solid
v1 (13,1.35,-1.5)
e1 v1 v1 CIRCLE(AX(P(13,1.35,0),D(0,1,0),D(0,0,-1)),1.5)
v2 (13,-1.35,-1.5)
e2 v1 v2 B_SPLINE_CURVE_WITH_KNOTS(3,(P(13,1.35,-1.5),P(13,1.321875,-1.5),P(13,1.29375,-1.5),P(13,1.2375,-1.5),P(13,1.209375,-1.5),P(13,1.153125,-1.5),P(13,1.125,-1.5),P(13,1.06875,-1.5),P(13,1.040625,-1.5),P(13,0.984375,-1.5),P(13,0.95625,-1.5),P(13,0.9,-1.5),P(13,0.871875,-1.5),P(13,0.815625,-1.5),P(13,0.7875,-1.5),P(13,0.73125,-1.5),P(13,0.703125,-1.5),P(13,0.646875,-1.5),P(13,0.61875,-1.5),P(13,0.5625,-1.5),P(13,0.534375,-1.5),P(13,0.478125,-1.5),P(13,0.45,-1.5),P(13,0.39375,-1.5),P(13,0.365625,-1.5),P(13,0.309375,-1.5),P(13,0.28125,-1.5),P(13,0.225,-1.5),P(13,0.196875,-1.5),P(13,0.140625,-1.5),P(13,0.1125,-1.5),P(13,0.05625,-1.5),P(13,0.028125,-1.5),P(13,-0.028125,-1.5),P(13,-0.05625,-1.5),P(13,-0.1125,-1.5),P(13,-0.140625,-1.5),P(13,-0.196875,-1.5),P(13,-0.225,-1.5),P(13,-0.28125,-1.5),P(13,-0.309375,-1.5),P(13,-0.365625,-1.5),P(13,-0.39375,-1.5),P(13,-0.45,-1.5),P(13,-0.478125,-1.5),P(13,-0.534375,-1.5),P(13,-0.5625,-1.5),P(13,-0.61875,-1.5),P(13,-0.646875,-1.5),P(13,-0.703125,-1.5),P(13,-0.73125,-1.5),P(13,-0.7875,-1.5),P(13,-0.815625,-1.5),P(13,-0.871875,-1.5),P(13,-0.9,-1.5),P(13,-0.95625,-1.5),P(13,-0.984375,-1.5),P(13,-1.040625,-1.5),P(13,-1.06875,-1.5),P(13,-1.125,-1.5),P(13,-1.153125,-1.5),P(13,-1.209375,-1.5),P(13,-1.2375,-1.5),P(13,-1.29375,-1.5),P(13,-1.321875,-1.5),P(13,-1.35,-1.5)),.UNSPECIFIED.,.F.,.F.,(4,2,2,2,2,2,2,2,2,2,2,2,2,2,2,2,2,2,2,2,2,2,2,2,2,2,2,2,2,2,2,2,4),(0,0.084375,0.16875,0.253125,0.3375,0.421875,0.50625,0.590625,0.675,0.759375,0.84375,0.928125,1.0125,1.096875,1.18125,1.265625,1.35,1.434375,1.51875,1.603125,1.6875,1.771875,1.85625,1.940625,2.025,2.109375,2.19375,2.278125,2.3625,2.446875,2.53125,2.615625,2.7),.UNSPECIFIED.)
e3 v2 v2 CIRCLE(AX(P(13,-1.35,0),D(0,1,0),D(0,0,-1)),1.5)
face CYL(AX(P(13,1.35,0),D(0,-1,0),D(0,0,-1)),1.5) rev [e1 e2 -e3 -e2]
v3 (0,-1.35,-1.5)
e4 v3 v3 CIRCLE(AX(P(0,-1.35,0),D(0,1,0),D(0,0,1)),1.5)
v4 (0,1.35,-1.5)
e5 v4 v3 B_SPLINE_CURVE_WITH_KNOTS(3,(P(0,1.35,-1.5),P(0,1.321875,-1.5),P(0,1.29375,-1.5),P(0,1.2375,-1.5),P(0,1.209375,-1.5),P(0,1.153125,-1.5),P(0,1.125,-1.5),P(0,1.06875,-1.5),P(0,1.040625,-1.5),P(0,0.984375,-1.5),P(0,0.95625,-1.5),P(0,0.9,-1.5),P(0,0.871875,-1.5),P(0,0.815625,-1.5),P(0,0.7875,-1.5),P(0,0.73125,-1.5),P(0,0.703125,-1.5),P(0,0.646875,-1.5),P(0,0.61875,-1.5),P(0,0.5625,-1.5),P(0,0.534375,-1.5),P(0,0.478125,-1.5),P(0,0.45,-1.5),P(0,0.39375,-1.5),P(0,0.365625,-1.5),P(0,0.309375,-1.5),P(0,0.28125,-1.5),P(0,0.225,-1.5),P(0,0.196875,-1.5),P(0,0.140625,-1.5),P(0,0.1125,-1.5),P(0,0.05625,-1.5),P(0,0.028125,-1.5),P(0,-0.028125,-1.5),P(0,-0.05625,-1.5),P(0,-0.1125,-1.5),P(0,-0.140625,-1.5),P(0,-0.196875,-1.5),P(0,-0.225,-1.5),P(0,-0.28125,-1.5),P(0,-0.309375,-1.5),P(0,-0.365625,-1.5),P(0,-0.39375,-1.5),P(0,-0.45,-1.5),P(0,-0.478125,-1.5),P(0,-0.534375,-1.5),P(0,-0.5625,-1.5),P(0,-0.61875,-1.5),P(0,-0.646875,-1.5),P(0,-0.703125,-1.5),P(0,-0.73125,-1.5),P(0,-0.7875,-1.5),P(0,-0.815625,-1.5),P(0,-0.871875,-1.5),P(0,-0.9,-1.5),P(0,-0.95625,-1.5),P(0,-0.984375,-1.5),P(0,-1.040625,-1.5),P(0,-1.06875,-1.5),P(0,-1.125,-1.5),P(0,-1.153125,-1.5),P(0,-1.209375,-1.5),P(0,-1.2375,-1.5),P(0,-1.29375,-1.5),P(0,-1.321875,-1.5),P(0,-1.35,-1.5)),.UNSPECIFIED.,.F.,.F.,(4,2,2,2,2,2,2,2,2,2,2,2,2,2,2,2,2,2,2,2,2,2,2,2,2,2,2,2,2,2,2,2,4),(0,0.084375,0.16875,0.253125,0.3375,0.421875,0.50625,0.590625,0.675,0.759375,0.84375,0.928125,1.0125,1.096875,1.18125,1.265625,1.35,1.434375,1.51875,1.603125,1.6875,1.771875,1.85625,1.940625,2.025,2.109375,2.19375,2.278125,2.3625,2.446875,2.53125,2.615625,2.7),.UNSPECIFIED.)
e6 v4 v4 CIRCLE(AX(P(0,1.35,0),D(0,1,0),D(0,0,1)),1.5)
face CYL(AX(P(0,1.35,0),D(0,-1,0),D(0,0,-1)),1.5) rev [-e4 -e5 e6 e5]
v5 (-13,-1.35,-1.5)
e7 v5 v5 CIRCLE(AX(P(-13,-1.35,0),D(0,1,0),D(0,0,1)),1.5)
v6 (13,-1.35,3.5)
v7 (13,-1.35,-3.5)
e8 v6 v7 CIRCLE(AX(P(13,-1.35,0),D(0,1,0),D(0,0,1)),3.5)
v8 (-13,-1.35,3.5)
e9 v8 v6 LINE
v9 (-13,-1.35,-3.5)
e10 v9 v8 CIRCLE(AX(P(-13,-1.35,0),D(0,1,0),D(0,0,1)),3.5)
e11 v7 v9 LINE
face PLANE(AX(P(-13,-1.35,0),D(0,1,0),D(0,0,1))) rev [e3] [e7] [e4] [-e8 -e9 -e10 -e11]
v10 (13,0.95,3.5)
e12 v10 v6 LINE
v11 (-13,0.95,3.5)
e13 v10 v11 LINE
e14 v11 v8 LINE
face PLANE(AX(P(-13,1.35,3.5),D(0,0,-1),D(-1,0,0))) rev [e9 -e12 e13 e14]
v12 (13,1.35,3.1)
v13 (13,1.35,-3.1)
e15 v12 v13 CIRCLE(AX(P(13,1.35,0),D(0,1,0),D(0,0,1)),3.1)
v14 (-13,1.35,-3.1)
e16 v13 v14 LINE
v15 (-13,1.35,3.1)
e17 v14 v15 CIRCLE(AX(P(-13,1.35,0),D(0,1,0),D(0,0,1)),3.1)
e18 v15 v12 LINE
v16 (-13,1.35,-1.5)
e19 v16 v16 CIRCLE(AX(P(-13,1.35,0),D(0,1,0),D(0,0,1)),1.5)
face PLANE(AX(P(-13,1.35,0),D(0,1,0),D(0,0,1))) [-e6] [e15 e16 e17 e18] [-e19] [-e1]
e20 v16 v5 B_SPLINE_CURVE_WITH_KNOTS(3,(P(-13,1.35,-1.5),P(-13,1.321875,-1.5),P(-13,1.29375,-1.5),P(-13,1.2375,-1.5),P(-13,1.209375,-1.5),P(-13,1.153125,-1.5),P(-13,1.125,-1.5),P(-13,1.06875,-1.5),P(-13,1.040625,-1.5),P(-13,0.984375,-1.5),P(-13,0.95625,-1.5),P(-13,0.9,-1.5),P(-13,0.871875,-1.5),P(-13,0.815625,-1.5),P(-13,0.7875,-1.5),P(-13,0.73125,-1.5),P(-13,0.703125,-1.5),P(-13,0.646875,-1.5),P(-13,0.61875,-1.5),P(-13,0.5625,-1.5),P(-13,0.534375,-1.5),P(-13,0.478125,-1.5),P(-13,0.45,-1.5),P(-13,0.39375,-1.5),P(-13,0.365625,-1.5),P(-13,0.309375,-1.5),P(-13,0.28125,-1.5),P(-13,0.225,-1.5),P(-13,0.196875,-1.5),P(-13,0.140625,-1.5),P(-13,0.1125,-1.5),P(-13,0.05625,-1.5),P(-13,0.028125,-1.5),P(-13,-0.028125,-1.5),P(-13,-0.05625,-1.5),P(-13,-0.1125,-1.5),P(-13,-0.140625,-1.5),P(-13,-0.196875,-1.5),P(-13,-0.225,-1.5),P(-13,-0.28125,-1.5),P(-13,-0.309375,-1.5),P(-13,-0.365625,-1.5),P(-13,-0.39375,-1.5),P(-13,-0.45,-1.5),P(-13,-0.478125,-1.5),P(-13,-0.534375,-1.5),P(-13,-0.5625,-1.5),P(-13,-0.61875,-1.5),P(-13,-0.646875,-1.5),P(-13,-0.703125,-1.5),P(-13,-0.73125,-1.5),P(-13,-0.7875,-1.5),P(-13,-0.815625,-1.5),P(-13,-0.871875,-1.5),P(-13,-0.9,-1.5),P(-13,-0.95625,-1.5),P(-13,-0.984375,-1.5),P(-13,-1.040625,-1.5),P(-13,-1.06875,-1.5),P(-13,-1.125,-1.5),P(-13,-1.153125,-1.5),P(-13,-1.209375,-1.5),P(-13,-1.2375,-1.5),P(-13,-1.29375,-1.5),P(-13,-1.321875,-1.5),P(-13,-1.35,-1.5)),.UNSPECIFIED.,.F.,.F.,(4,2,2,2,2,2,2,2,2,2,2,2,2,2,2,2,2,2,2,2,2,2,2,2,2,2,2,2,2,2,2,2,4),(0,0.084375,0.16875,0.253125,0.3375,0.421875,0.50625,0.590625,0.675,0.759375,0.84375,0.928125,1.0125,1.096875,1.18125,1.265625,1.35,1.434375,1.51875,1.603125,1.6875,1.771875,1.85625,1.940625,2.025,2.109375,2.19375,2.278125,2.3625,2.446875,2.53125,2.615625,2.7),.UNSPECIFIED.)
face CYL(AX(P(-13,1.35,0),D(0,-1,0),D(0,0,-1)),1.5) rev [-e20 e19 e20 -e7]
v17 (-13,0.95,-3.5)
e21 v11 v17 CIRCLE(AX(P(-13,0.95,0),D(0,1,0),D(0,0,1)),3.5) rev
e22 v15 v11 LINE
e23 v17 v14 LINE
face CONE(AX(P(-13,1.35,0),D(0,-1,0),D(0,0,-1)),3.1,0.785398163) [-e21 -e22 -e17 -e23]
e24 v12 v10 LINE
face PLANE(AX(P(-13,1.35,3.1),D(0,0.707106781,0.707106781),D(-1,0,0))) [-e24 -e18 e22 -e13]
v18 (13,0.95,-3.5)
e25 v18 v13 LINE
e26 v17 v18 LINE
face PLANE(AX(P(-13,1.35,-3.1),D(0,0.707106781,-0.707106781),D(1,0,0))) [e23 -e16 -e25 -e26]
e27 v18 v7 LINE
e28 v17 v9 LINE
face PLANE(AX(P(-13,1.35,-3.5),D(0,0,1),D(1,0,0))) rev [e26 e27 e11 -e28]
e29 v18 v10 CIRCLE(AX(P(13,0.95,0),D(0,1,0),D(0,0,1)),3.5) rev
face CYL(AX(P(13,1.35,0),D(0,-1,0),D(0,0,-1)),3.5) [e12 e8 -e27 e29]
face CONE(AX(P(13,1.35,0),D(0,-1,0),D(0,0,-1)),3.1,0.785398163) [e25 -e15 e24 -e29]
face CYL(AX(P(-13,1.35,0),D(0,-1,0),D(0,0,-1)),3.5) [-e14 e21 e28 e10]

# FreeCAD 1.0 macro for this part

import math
import FreeCAD as App
import Part
import Sketcher
from FreeCAD import Vector
Q = App.Units.Quantity


def edges_at(feature, points):
    """Names of the edges that pass closest to the given points."""
    edges = feature.Shape.Edges
    near = lambda p: min(range(len(edges)), key=lambda i: edges[i].distToShape(Part.Vertex(*p))[0])
    return sorted({f"Edge{near(p) + 1}" for p in points})

doc = App.newDocument("Part")
body = doc.addObject("PartDesign::Body", "Body")

sketch1 = body.newObject("Sketcher::SketchObject", "Sketch")
sketch1.AttachmentSupport = (doc.getObject("XZ_Plane"), [""])
sketch1.MapMode = "FlatFace"
sketch1.addGeometry(Part.LineSegment(Vector(13, -3.5, 0), Vector(-13, -3.5, 0)), False)
sketch1.addGeometry(Part.ArcOfCircle(Part.Circle(Vector(-13, 0, 0), Vector(0, 0, 1), 3.5), math.radians(90), math.radians(270)), False)
sketch1.addGeometry(Part.LineSegment(Vector(-13, 3.5, 0), Vector(13, 3.5, 0)), False)
sketch1.addGeometry(Part.ArcOfCircle(Part.Circle(Vector(13, 0, 0), Vector(0, 0, 1), 3.5), math.radians(-90), math.radians(90)), False)
sketch1.addGeometry(Part.Circle(Vector(13, 0, 0), Vector(0, 0, 1), 1.5), False)
sketch1.addGeometry(Part.Circle(Vector(0, 0, 0), Vector(0, 0, 1), 1.5), False)
sketch1.addGeometry(Part.Circle(Vector(-13, 0, 0), Vector(0, 0, 1), 1.5), False)
sketch1.addConstraint(Sketcher.Constraint("Tangent", 0, 2, 1, 2))
sketch1.addConstraint(Sketcher.Constraint("Tangent", 1, 1, 2, 1))
sketch1.addConstraint(Sketcher.Constraint("Tangent", 2, 2, 3, 2))
sketch1.addConstraint(Sketcher.Constraint("Tangent", 3, 1, 0, 1))
sketch1.addConstraint(Sketcher.Constraint("Horizontal", 0))
sketch1.addConstraint(Sketcher.Constraint("Horizontal", 2))
sketch1.addConstraint(Sketcher.Constraint("Coincident", 5, 3, -1, 1))
sketch1.addConstraint(Sketcher.Constraint("Coincident", 4, 3, 3, 3))
sketch1.addConstraint(Sketcher.Constraint("Coincident", 6, 3, 1, 3))
sketch1.addConstraint(Sketcher.Constraint("Equal", 4, 5))
sketch1.addConstraint(Sketcher.Constraint("Equal", 5, 6))
sketch1.addConstraint(Sketcher.Constraint("Symmetric", 1, 3, 3, 3, -1, 1))
sketch1.addConstraint(Sketcher.Constraint("Diameter", 4, Q("3 mm")))
sketch1.addConstraint(Sketcher.Constraint("Radius", 1, Q("3.5 mm")))
sketch1.addConstraint(Sketcher.Constraint("DistanceX", 0, 2, 0, 1, Q("26 mm")))
pad1 = body.newObject("PartDesign::Pad", "Pad")
pad1.Profile = sketch1
pad1.Length = 2.7
pad1.Midplane = True
doc.recompute()

chamfer = body.newObject("PartDesign::Chamfer", "Chamfer")
chamfer.Base = (pad1, edges_at(pad1, [
    (16.5, 1.35, 0),
    (0, 1.35, -3.5),
    (-16.5, 1.35, 0),
    (0, 1.35, 3.5),
]))
chamfer.Size = 0.4

doc.recompute()
